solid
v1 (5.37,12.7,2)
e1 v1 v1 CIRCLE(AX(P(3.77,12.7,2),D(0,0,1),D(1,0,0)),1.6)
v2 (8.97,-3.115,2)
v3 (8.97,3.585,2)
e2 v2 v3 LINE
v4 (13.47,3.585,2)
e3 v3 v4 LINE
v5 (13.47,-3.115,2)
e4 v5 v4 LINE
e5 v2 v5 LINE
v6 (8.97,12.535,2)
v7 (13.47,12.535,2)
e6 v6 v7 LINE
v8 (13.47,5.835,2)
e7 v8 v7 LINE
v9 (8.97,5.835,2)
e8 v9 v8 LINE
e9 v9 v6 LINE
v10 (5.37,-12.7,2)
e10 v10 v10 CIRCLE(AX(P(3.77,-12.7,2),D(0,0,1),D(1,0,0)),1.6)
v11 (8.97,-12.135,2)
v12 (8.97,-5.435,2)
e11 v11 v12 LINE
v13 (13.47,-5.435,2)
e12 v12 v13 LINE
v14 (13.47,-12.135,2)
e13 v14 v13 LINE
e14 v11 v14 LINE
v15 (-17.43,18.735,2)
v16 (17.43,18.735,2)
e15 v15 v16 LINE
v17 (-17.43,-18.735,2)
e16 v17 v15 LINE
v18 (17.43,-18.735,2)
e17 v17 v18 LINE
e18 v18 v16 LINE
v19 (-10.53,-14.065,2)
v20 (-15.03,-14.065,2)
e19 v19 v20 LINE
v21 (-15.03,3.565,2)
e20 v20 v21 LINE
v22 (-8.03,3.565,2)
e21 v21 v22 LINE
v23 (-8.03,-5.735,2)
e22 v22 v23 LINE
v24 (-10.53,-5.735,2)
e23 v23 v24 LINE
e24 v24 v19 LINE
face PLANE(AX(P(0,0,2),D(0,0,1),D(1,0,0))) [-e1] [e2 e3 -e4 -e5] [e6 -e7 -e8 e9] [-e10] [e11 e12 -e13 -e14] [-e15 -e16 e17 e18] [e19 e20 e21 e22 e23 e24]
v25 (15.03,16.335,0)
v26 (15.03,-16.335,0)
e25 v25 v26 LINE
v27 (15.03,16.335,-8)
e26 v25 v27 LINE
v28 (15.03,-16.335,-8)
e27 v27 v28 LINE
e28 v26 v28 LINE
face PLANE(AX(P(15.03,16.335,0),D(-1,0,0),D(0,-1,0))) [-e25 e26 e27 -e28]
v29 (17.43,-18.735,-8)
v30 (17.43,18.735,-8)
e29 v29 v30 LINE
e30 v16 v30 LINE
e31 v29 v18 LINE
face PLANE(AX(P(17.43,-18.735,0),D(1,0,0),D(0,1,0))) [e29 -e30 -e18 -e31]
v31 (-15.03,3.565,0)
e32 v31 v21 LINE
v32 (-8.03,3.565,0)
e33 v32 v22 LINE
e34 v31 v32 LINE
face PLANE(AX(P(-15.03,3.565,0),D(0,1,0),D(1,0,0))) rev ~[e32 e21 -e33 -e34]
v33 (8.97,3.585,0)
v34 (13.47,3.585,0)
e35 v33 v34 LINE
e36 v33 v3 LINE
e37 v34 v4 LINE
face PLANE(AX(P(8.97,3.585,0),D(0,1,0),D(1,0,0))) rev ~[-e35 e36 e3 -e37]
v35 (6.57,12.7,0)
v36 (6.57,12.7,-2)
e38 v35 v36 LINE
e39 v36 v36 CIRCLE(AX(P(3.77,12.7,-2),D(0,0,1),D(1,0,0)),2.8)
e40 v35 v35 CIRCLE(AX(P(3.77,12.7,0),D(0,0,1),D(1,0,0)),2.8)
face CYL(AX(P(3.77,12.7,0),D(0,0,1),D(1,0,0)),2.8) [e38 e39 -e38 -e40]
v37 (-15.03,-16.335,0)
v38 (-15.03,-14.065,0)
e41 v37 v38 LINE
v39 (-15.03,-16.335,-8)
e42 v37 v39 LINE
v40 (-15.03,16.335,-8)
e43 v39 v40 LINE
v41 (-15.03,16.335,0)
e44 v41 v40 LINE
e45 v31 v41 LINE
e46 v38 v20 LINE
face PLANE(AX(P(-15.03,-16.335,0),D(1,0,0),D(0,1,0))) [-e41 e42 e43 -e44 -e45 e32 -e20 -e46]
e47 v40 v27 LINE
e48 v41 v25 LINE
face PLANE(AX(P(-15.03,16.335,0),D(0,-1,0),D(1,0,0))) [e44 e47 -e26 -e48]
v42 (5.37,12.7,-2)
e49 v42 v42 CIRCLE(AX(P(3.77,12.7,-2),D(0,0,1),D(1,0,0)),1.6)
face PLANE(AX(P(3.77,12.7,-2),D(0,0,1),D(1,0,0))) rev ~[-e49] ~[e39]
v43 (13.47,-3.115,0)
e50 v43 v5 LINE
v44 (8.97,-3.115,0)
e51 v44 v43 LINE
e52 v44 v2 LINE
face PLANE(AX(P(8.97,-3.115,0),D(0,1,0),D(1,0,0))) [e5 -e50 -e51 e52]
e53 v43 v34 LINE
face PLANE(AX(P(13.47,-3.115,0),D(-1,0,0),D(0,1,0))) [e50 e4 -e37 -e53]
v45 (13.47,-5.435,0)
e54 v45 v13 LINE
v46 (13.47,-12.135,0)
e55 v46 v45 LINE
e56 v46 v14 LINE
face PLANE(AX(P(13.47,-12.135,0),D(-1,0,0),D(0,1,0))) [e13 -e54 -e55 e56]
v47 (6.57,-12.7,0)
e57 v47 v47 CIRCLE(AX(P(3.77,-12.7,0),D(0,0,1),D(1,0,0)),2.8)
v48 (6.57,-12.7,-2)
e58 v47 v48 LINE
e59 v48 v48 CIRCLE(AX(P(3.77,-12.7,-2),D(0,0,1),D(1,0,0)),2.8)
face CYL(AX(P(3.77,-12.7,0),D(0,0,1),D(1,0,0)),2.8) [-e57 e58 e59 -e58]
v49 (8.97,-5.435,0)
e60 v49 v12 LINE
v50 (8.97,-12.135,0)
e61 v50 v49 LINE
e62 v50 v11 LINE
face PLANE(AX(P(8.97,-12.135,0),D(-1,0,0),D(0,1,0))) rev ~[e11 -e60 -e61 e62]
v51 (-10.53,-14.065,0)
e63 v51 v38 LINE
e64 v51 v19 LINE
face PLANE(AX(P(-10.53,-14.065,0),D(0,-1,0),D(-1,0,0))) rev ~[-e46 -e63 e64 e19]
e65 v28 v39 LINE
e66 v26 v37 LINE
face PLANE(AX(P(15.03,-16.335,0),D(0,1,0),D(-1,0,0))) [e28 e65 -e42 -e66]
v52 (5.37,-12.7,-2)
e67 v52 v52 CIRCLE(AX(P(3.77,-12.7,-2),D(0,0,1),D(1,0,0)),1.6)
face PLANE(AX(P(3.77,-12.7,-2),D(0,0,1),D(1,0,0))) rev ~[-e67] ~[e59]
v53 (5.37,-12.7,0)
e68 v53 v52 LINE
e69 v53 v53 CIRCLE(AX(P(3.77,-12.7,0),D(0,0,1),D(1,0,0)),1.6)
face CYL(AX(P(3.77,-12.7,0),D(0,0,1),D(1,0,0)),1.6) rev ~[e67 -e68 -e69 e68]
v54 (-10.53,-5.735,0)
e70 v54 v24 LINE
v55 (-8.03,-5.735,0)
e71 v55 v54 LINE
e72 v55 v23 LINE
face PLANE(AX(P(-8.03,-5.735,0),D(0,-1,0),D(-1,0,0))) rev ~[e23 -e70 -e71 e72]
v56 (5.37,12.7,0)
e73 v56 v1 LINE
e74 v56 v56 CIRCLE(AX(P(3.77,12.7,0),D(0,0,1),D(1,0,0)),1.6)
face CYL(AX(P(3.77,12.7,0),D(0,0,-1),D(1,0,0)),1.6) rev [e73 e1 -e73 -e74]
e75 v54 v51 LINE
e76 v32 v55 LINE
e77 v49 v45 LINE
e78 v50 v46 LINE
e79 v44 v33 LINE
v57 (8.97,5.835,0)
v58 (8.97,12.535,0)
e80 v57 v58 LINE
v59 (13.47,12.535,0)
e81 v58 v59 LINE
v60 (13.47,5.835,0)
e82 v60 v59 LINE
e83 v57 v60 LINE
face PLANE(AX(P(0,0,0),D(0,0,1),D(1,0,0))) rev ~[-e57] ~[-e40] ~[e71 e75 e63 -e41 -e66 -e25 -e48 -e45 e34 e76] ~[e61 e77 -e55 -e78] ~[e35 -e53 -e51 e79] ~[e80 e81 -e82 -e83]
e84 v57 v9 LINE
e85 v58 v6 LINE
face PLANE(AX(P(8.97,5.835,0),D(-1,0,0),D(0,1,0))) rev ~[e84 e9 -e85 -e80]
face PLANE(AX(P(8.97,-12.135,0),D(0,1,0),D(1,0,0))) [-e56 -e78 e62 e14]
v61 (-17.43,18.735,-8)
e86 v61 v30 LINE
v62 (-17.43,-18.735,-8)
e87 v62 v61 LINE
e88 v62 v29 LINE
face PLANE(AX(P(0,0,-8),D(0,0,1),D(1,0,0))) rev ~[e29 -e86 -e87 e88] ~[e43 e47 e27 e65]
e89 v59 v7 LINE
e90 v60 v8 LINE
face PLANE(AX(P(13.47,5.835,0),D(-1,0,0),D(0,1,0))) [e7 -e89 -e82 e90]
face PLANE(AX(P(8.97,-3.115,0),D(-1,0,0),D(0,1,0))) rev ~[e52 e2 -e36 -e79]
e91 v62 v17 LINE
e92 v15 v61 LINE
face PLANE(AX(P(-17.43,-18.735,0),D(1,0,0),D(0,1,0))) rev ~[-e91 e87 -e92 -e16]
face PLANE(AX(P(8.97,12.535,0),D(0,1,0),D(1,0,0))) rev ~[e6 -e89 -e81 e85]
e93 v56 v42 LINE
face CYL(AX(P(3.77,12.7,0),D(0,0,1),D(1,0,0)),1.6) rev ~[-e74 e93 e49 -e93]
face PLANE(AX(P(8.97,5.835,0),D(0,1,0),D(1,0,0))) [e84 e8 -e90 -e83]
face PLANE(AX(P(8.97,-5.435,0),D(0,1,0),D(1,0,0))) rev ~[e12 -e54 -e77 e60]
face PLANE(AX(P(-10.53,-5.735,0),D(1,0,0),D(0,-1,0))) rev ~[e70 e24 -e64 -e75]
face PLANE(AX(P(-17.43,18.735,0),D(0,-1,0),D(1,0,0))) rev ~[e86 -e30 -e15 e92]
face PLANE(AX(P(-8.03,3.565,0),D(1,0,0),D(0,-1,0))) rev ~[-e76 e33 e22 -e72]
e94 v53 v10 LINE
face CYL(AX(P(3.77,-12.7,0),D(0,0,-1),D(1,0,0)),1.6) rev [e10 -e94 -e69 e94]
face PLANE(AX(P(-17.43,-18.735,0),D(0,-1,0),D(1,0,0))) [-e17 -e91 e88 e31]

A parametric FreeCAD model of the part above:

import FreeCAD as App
import Part
import Sketcher

V = App.Vector
Q = App.Units.Quantity


def add_polygon(sketch, points):
    """Adds a closed chain of lines whose ends are joined by coincident constraints."""
    first, n = sketch.GeometryCount, len(points)
    for a, b in zip(points, points[1:] + points[:1]):
        sketch.addGeometry(Part.LineSegment(App.Vector(*a, 0), App.Vector(*b, 0)), False)
    for i in range(n):
        sketch.addConstraint(Sketcher.Constraint("Coincident", first + i, 2, first + (i + 1) % n, 1))

doc = App.newDocument("Part")
body = doc.addObject("PartDesign::Body", "Body")

# Sketch on XY plane
sketch1 = body.newObject("Sketcher::SketchObject", "Sketch")
sketch1.AttachmentSupport = (doc.getObject("XY_Plane"), [""])
sketch1.MapMode = "FlatFace"
add_polygon(sketch1, [(-17.4, 18.7), (-17.4, -18.7), (17.4, -18.7), (17.4, 18.7)])  # lines 0-3
add_polygon(sketch1, [(-15, -14.1), (-15, 3.6), (-8, 3.6), (-8, -5.7), (-10.5, -5.7), (-10.5, -14.1)])  # lines 4-9
sketch1.addGeometry(Part.Circle(V(3.8, -12.7, 0), V(0, 0, 1), 1.6), False)  # 10
add_polygon(sketch1, [(13.5, -12.1), (9, -12.1), (9, -5.4), (13.5, -5.4)])  # lines 11-14
add_polygon(sketch1, [(13.5, -3.1), (9, -3.1), (9, 3.6), (13.5, 3.6)])  # lines 15-18
sketch1.addGeometry(Part.Circle(V(3.8, 12.7, 0), V(0, 0, 1), 1.6), False)  # 19
add_polygon(sketch1, [(13.5, 5.8), (9, 5.8), (9, 12.5), (13.5, 12.5)])  # lines 20-23
sketch1.addConstraint(Sketcher.Constraint("Vertical", 0))
sketch1.addConstraint(Sketcher.Constraint("Horizontal", 1))
sketch1.addConstraint(Sketcher.Constraint("Vertical", 2))
sketch1.addConstraint(Sketcher.Constraint("Horizontal", 3))
sketch1.addConstraint(Sketcher.Constraint("Vertical", 4))
sketch1.addConstraint(Sketcher.Constraint("Horizontal", 5))
sketch1.addConstraint(Sketcher.Constraint("Vertical", 6))
sketch1.addConstraint(Sketcher.Constraint("Horizontal", 7))
sketch1.addConstraint(Sketcher.Constraint("Vertical", 8))
sketch1.addConstraint(Sketcher.Constraint("Horizontal", 9))
sketch1.addConstraint(Sketcher.Constraint("Horizontal", 11))
sketch1.addConstraint(Sketcher.Constraint("Vertical", 12))
sketch1.addConstraint(Sketcher.Constraint("Horizontal", 13))
sketch1.addConstraint(Sketcher.Constraint("Vertical", 14))
sketch1.addConstraint(Sketcher.Constraint("Horizontal", 15))
sketch1.addConstraint(Sketcher.Constraint("Vertical", 16))
sketch1.addConstraint(Sketcher.Constraint("Horizontal", 17))
sketch1.addConstraint(Sketcher.Constraint("Vertical", 18))
sketch1.addConstraint(Sketcher.Constraint("Horizontal", 20))
sketch1.addConstraint(Sketcher.Constraint("Vertical", 21))
sketch1.addConstraint(Sketcher.Constraint("Horizontal", 22))
sketch1.addConstraint(Sketcher.Constraint("Vertical", 23))
sketch1.addConstraint(Sketcher.Constraint("Equal", 10, 19))
sketch1.addConstraint(Sketcher.Constraint("Symmetric", 0, 2, 2, 2, -1, 1))
sketch1.addConstraint(Sketcher.Constraint("Symmetric", 10, 3, 19, 3, -1))
sketch1.addConstraint(Sketcher.Constraint("Vertical", 12, 2, 15, 2))
sketch1.addConstraint(Sketcher.Constraint("Vertical", 14, 2, 17, 2))
sketch1.addConstraint(Sketcher.Constraint("Vertical", 16, 2, 20, 2))
sketch1.addConstraint(Sketcher.Constraint("Vertical", 18, 2, 22, 2))
sketch1.addConstraint(Sketcher.Constraint("Equal", 9, 11))
sketch1.addConstraint(Sketcher.Constraint("Equal", 14, 16))
sketch1.addConstraint(Sketcher.Constraint("Equal", 18, 21))
sketch1.addConstraint(Sketcher.Constraint("Diameter", 10, Q("3.2 mm")))
sketch1.addConstraint(Sketcher.Constraint("DistanceX", 5, 1, 5, 2, Q("7 mm")))
sketch1.addConstraint(Sketcher.Constraint("DistanceX", 7, 2, 7, 1, Q("2.5 mm")))
sketch1.addConstraint(Sketcher.Constraint("DistanceY", 6, 2, 6, 1, Q("9.3 mm")))
sketch1.addConstraint(Sketcher.Constraint("DistanceY", 12, 1, 12, 2, Q("6.7 mm")))
sketch1.addConstraint(Sketcher.Constraint("DistanceY", 0, 2, 6, 2, Q("13 mm")))
sketch1.addConstraint(Sketcher.Constraint("DistanceX", 6, 2, 11, 2, Q("17 mm")))
sketch1.addConstraint(Sketcher.Constraint("DistanceX", 1, 1, 1, 2, Q("34.86 mm")))
sketch1.addConstraint(Sketcher.Constraint("DistanceY", 0, 2, 0, 1, Q("37.47 mm")))
sketch1.addConstraint(Sketcher.Constraint("DistanceY", 4, 1, 4, 2, Q("17.63 mm")))
sketch1.addConstraint(Sketcher.Constraint("DistanceY", 10, 3, -1, 1, Q("12.7 mm")))
sketch1.addConstraint(Sketcher.Constraint("DistanceX", 0, 2, 10, 3, Q("21.2 mm")))
sketch1.addConstraint(Sketcher.Constraint("DistanceX", 3, 2, 4, 2, Q("2.4 mm")))
sketch1.addConstraint(Sketcher.Constraint("DistanceY", 1, 2, 11, 2, Q("6.6 mm")))
sketch1.addConstraint(Sketcher.Constraint("DistanceY", 21, 2, 2, 2, Q("6.2 mm")))
sketch1.addConstraint(Sketcher.Constraint("DistanceY", 12, 2, 15, 2, Q("2.32 mm")))
pad1 = body.newObject("PartDesign::Pad", "Pad")
pad1.Profile = sketch1
pad1.Length = 2

# Sketch on XY plane
sketch2 = body.newObject("Sketcher::SketchObject", "Sketch001")
sketch2.AttachmentSupport = (doc.getObject("XY_Plane"), [""])
sketch2.MapMode = "FlatFace"
add_polygon(sketch2, [(-17, 19), (-17, -19), (17, -19), (17, 19)])  # lines 0-3
add_polygon(sketch2, [(-15, 16), (15, 16), (15, -16), (-15, -16)])  # lines 4-7
sketch2.addConstraint(Sketcher.Constraint("Vertical", 0))
sketch2.addConstraint(Sketcher.Constraint("Horizontal", 1))
sketch2.addConstraint(Sketcher.Constraint("Vertical", 2))
sketch2.addConstraint(Sketcher.Constraint("Horizontal", 3))
sketch2.addConstraint(Sketcher.Constraint("Horizontal", 4))
sketch2.addConstraint(Sketcher.Constraint("Vertical", 5))
sketch2.addConstraint(Sketcher.Constraint("Horizontal", 6))
sketch2.addConstraint(Sketcher.Constraint("Vertical", 7))
sketch2.addConstraint(Sketcher.Constraint("Symmetric", 0, 2, 2, 2, -1, 1))
sketch2.addConstraint(Sketcher.Constraint("Symmetric", 4, 2, 6, 2, -1, 1))
sketch2.addConstraint(Sketcher.Constraint("DistanceX", 1, 1, 1, 2, Q("34.86 mm")))
sketch2.addConstraint(Sketcher.Constraint("DistanceX", 4, 1, 4, 2, Q("30.06 mm")))
sketch2.addConstraint(Sketcher.Constraint("DistanceY", 0, 2, 0, 1, Q("37.47 mm")))
sketch2.addConstraint(Sketcher.Constraint("DistanceY", 5, 2, 5, 1, Q("32.67 mm")))
pad2 = body.newObject("PartDesign::Pad", "Pad001")
pad2.Profile = sketch2
pad2.Length = 8
pad2.Reversed = True

# Sketch on XY plane
sketch3 = body.newObject("Sketcher::SketchObject", "Sketch002")
sketch3.AttachmentSupport = (doc.getObject("XY_Plane"), [""])
sketch3.MapMode = "FlatFace"
sketch3.addGeometry(Part.Circle(V(3.8, 12.7, 0), V(0, 0, 1), 2.8), False)
sketch3.addGeometry(Part.Circle(V(3.8, 12.7, 0), V(0, 0, 1), 1.6), False)
sketch3.addGeometry(Part.Circle(V(3.8, -12.7, 0), V(0, 0, 1), 2.8), False)
sketch3.addGeometry(Part.Circle(V(3.8, -12.7, 0), V(0, 0, 1), 1.6), False)
sketch3.addConstraint(Sketcher.Constraint("Coincident", 1, 3, 0, 3))
sketch3.addConstraint(Sketcher.Constraint("Coincident", 3, 3, 2, 3))
sketch3.addConstraint(Sketcher.Constraint("Equal", 0, 2))
sketch3.addConstraint(Sketcher.Constraint("Equal", 1, 3))
sketch3.addConstraint(Sketcher.Constraint("Symmetric", 0, 3, 2, 3, -1))
sketch3.addConstraint(Sketcher.Constraint("Diameter", 0, Q("5.6 mm")))
sketch3.addConstraint(Sketcher.Constraint("Diameter", 1, Q("3.2 mm")))
sketch3.addConstraint(Sketcher.Constraint("DistanceY", -1, 1, 0, 3, Q("12.7 mm")))
sketch3.addConstraint(Sketcher.Constraint("DistanceX", -1, 1, 0, 3, Q("3.77 mm")))
pad3 = body.newObject("PartDesign::Pad", "Pad002")
pad3.Profile = sketch3
pad3.Length = 2
pad3.Reversed = True

doc.recompute()
